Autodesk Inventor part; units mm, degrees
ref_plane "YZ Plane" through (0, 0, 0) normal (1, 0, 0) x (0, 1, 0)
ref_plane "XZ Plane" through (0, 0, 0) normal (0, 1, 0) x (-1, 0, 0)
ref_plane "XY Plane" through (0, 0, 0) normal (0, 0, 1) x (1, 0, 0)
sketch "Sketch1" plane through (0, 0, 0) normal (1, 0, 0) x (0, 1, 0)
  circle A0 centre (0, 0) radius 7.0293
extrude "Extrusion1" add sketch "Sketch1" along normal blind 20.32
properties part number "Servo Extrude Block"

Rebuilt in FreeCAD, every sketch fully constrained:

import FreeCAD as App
import Part
import Sketcher
Q = App.Units.Quantity

doc = App.newDocument("Part")
body = doc.addObject("PartDesign::Body", "Body")

# Sketch on YZ plane
sketch1 = body.newObject("Sketcher::SketchObject", "Sketch")
sketch1.AttachmentSupport = (doc.getObject("YZ_Plane"), [""])
sketch1.MapMode = "FlatFace"
sketch1.addGeometry(Part.Circle(App.Vector(0, 0, 0), App.Vector(0, 0, 1), 7.0293), False)
sketch1.addConstraint(Sketcher.Constraint("Coincident", 0, 3, -1, 1))
sketch1.addConstraint(Sketcher.Constraint("Diameter", 0, Q("0.5535 in")))
pad1 = body.newObject("PartDesign::Pad", "Pad")
pad1.Profile = sketch1
pad1.Length = Q("0.8 in")

doc.recompute()
